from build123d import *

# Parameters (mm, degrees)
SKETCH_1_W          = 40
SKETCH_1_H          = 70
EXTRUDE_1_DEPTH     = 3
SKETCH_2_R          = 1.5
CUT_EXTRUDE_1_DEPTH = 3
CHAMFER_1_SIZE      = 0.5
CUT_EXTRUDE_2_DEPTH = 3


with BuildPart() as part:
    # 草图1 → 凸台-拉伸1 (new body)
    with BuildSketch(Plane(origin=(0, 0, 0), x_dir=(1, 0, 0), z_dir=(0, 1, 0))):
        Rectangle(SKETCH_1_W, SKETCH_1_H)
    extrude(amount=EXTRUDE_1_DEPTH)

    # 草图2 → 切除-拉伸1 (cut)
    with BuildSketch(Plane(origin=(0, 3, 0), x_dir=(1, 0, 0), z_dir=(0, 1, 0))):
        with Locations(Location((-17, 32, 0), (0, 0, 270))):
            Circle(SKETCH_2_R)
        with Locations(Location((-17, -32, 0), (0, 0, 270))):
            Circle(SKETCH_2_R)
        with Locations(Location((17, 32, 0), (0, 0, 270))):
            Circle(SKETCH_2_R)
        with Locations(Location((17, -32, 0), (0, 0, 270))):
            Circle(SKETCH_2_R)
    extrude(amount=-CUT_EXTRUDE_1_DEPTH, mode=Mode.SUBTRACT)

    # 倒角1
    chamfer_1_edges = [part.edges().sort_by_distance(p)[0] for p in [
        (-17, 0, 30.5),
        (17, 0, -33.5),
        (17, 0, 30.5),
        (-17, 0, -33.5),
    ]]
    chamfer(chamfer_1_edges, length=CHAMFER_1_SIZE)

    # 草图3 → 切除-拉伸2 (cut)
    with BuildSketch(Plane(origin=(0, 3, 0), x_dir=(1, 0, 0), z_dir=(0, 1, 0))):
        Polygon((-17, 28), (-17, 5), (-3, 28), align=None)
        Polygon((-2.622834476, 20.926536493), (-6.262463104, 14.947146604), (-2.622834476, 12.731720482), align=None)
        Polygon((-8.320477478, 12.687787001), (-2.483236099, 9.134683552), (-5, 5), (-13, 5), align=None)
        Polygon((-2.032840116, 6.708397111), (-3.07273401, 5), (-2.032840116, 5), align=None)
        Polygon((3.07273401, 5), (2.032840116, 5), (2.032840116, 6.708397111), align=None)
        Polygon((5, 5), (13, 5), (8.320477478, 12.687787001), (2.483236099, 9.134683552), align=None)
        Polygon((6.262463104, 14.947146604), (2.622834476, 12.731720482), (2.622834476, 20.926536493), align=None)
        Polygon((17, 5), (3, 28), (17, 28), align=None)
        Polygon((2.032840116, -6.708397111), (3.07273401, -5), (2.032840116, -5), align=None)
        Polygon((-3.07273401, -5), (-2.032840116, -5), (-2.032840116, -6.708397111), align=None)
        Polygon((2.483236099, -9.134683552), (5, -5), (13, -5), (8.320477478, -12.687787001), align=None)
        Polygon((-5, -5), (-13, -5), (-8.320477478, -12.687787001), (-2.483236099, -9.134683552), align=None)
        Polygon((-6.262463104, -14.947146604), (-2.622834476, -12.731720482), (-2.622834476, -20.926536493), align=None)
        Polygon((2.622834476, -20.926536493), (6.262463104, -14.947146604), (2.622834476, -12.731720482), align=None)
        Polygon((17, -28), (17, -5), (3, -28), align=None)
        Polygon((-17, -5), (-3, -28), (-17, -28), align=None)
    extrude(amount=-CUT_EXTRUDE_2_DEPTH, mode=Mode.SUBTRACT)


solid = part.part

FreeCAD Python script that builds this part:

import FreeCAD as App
import Part
import Sketcher

V = App.Vector


def edges_at(feature, points):
    """Names of the edges that pass closest to the given points."""
    edges = feature.Shape.Edges
    near = lambda p: min(range(len(edges)), key=lambda i: edges[i].distToShape(Part.Vertex(*p))[0])
    return sorted({f"Edge{near(p) + 1}" for p in points})

doc = App.newDocument("Part")
body = doc.addObject("PartDesign::Body", "Body")

# Sketch on XZ plane
sketch1 = doc.addObject("Sketcher::SketchObject", "Sketch")
body.addObject(sketch1)
sketch1.AttachmentSupport = (doc.XZ_Plane, [""])
sketch1.MapMode = "FlatFace"
sketch1.addGeometry([
    Part.LineSegment(V(-20, -35, 0), V(-20, 35, 0)),
    Part.LineSegment(V(-20, 35, 0), V(20, 35, 0)),
    Part.LineSegment(V(20, 35, 0), V(20, -35, 0)),
    Part.LineSegment(V(20, -35, 0), V(-20, -35, 0)),
], False)
sketch1.addConstraint([
    Sketcher.Constraint("Coincident", 0, 2, 1, 1),
    Sketcher.Constraint("Coincident", 1, 2, 2, 1),
    Sketcher.Constraint("Coincident", 2, 2, 3, 1),
    Sketcher.Constraint("Coincident", 3, 2, 0, 1),
    Sketcher.Constraint("Vertical", 0),
    Sketcher.Constraint("Horizontal", 1),
    Sketcher.Constraint("Vertical", 2),
    Sketcher.Constraint("Horizontal", 3),
    Sketcher.Constraint("Symmetric", 0, 2, 2, 2, -1, 1),
    Sketcher.Constraint("DistanceX", 1, 1, 1, 2, 40.0),
    Sketcher.Constraint("DistanceY", 0, 1, 0, 2, 70.0),
])
pad1 = doc.addObject("PartDesign::Pad", "Pad")
body.addObject(pad1)
pad1.Profile = sketch1
pad1.Length = 3
pad1.Reversed = True

# Sketch on XZ plane
sketch2 = doc.addObject("Sketcher::SketchObject", "Sketch001")
body.addObject(sketch2)
sketch2.AttachmentSupport = (doc.XZ_Plane, [""])
sketch2.MapMode = "FlatFace"
sketch2.AttachmentOffset = App.Placement(V(0, 0, -3), App.Rotation())
sketch2.addGeometry([
    Part.Circle(V(-17, -32, 0), V(0, 0, 1), 1.5),
    Part.Circle(V(-17, 32, 0), V(0, 0, 1), 1.5),
    Part.Circle(V(17, -32, 0), V(0, 0, 1), 1.5),
    Part.Circle(V(17, 32, 0), V(0, 0, 1), 1.5),
], False)
sketch2.addConstraint([
    Sketcher.Constraint("Equal", 0, 1),
    Sketcher.Constraint("Equal", 1, 2),
    Sketcher.Constraint("Equal", 2, 3),
    Sketcher.Constraint("Symmetric", 1, 3, 2, 3, -1, 1),
    Sketcher.Constraint("Symmetric", 0, 3, 3, 3, -1, 1),
    Sketcher.Constraint("Symmetric", 0, 3, 2, 3, -2),
    Sketcher.Constraint("Diameter", 0, 3.0),
    Sketcher.Constraint("DistanceX", 0, 3, -1, 1, 17.0),
    Sketcher.Constraint("DistanceY", 0, 3, -1, 1, 32.0),
])
pocket1 = doc.addObject("PartDesign::Pocket", "Pocket")
body.addObject(pocket1)
pocket1.Profile = sketch2
pocket1.Length = 3
pocket1.Reversed = True
doc.recompute()

chamfer = doc.addObject("PartDesign::Chamfer", "Chamfer")
body.addObject(chamfer)
chamfer.Base = (pocket1, edges_at(pocket1, [
    (-17, 0, 30.5),
    (17, 0, -33.5),
    (17, 0, 30.5),
    (-17, 0, -33.5),
]))
chamfer.Size = 0.5

# Sketch on XZ plane
sketch3 = doc.addObject("Sketcher::SketchObject", "Sketch002")
body.addObject(sketch3)
sketch3.AttachmentSupport = (doc.XZ_Plane, [""])
sketch3.MapMode = "FlatFace"
sketch3.AttachmentOffset = App.Placement(V(0, 0, -3), App.Rotation())
sketch3.addGeometry([
    Part.LineSegment(V(-17, -28, 0), V(-17, -5, 0)),  # 0
    Part.LineSegment(V(-17, -5, 0), V(-3, -28, 0)),  # 1
    Part.LineSegment(V(-3, -28, 0), V(-17, -28, 0)),  # 2
    Part.LineSegment(V(-2.6, -20.9, 0), V(-6.3, -14.9, 0)),  # 3
    Part.LineSegment(V(-6.3, -14.9, 0), V(-2.6, -12.7, 0)),  # 4
    Part.LineSegment(V(-2.6, -12.7, 0), V(-2.6, -20.9, 0)),  # 5
    Part.LineSegment(V(-2.5, -9.1, 0), V(-8.3, -12.7, 0)),  # 6
    Part.LineSegment(V(-8.3, -12.7, 0), V(-13, -5, 0)),  # 7
    Part.LineSegment(V(-13, -5, 0), V(-5, -5, 0)),  # 8
    Part.LineSegment(V(-5, -5, 0), V(-2.5, -9.1, 0)),  # 9
    Part.LineSegment(V(-2, -6.7, 0), V(-3.1, -5, 0)),  # 10
    Part.LineSegment(V(-3.1, -5, 0), V(-2, -5, 0)),  # 11
    Part.LineSegment(V(-2, -5, 0), V(-2, -6.7, 0)),  # 12
    Part.LineSegment(V(2, -5, 0), V(3.1, -5, 0)),  # 13
    Part.LineSegment(V(3.1, -5, 0), V(2, -6.7, 0)),  # 14
    Part.LineSegment(V(2, -6.7, 0), V(2, -5, 0)),  # 15
    Part.LineSegment(V(5, -5, 0), V(13, -5, 0)),  # 16
    Part.LineSegment(V(13, -5, 0), V(8.3, -12.7, 0)),  # 17
    Part.LineSegment(V(8.3, -12.7, 0), V(2.5, -9.1, 0)),  # 18
    Part.LineSegment(V(2.5, -9.1, 0), V(5, -5, 0)),  # 19
    Part.LineSegment(V(2.6, -12.7, 0), V(6.3, -14.9, 0)),  # 20
    Part.LineSegment(V(6.3, -14.9, 0), V(2.6, -20.9, 0)),  # 21
    Part.LineSegment(V(2.6, -20.9, 0), V(2.6, -12.7, 0)),  # 22
    Part.LineSegment(V(3, -28, 0), V(17, -5, 0)),  # 23
    Part.LineSegment(V(17, -5, 0), V(17, -28, 0)),  # 24
    Part.LineSegment(V(17, -28, 0), V(3, -28, 0)),  # 25
    Part.LineSegment(V(2, 6.7, 0), V(3.1, 5, 0)),  # 26
    Part.LineSegment(V(3.1, 5, 0), V(2, 5, 0)),  # 27
    Part.LineSegment(V(2, 5, 0), V(2, 6.7, 0)),  # 28
    Part.LineSegment(V(-2, 5, 0), V(-3.1, 5, 0)),  # 29
    Part.LineSegment(V(-3.1, 5, 0), V(-2, 6.7, 0)),  # 30
    Part.LineSegment(V(-2, 6.7, 0), V(-2, 5, 0)),  # 31
    Part.LineSegment(V(5, 5, 0), V(2.5, 9.1, 0)),  # 32
    Part.LineSegment(V(2.5, 9.1, 0), V(8.3, 12.7, 0)),  # 33
    Part.LineSegment(V(8.3, 12.7, 0), V(13, 5, 0)),  # 34
    Part.LineSegment(V(13, 5, 0), V(5, 5, 0)),  # 35
    Part.LineSegment(V(-5, 5, 0), V(-13, 5, 0)),  # 36
    Part.LineSegment(V(-13, 5, 0), V(-8.3, 12.7, 0)),  # 37
    Part.LineSegment(V(-8.3, 12.7, 0), V(-2.5, 9.1, 0)),  # 38
    Part.LineSegment(V(-2.5, 9.1, 0), V(-5, 5, 0)),  # 39
    Part.LineSegment(V(-2.6, 12.7, 0), V(-6.3, 14.9, 0)),  # 40
    Part.LineSegment(V(-6.3, 14.9, 0), V(-2.6, 20.9, 0)),  # 41
    Part.LineSegment(V(-2.6, 20.9, 0), V(-2.6, 12.7, 0)),  # 42
    Part.LineSegment(V(2.6, 20.9, 0), V(6.3, 14.9, 0)),  # 43
    Part.LineSegment(V(6.3, 14.9, 0), V(2.6, 12.7, 0)),  # 44
    Part.LineSegment(V(2.6, 12.7, 0), V(2.6, 20.9, 0)),  # 45
    Part.LineSegment(V(17, 28, 0), V(17, 5, 0)),  # 46
    Part.LineSegment(V(17, 5, 0), V(3, 28, 0)),  # 47
    Part.LineSegment(V(3, 28, 0), V(17, 28, 0)),  # 48
    Part.LineSegment(V(-3, 28, 0), V(-17, 5, 0)),  # 49
    Part.LineSegment(V(-17, 5, 0), V(-17, 28, 0)),  # 50
    Part.LineSegment(V(-17, 28, 0), V(-3, 28, 0)),  # 51
], False)
sketch3.addConstraint([
    Sketcher.Constraint("Coincident", 0, 2, 1, 1),
    Sketcher.Constraint("Coincident", 1, 2, 2, 1),
    Sketcher.Constraint("Coincident", 2, 2, 0, 1),
    Sketcher.Constraint("Coincident", 3, 2, 4, 1),
    Sketcher.Constraint("Coincident", 4, 2, 5, 1),
    Sketcher.Constraint("Coincident", 5, 2, 3, 1),
    Sketcher.Constraint("Coincident", 6, 2, 7, 1),
    Sketcher.Constraint("Coincident", 7, 2, 8, 1),
    Sketcher.Constraint("Coincident", 8, 2, 9, 1),
    Sketcher.Constraint("Coincident", 9, 2, 6, 1),
    Sketcher.Constraint("Coincident", 10, 2, 11, 1),
    Sketcher.Constraint("Coincident", 11, 2, 12, 1),
    Sketcher.Constraint("Coincident", 12, 2, 10, 1),
    Sketcher.Constraint("Coincident", 13, 2, 14, 1),
    Sketcher.Constraint("Coincident", 14, 2, 15, 1),
    Sketcher.Constraint("Coincident", 15, 2, 13, 1),
    Sketcher.Constraint("Coincident", 16, 2, 17, 1),
    Sketcher.Constraint("Coincident", 17, 2, 18, 1),
    Sketcher.Constraint("Coincident", 18, 2, 19, 1),
    Sketcher.Constraint("Coincident", 19, 2, 16, 1),
    Sketcher.Constraint("Coincident", 20, 2, 21, 1),
    Sketcher.Constraint("Coincident", 21, 2, 22, 1),
    Sketcher.Constraint("Coincident", 22, 2, 20, 1),
    Sketcher.Constraint("Coincident", 23, 2, 24, 1),
    Sketcher.Constraint("Coincident", 24, 2, 25, 1),
    Sketcher.Constraint("Coincident", 25, 2, 23, 1),
    Sketcher.Constraint("Coincident", 26, 2, 27, 1),
    Sketcher.Constraint("Coincident", 27, 2, 28, 1),
    Sketcher.Constraint("Coincident", 28, 2, 26, 1),
    Sketcher.Constraint("Coincident", 29, 2, 30, 1),
    Sketcher.Constraint("Coincident", 30, 2, 31, 1),
    Sketcher.Constraint("Coincident", 31, 2, 29, 1),
    Sketcher.Constraint("Coincident", 32, 2, 33, 1),
    Sketcher.Constraint("Coincident", 33, 2, 34, 1),
    Sketcher.Constraint("Coincident", 34, 2, 35, 1),
    Sketcher.Constraint("Coincident", 35, 2, 32, 1),
    Sketcher.Constraint("Coincident", 36, 2, 37, 1),
    Sketcher.Constraint("Coincident", 37, 2, 38, 1),
    Sketcher.Constraint("Coincident", 38, 2, 39, 1),
    Sketcher.Constraint("Coincident", 39, 2, 36, 1),
    Sketcher.Constraint("Coincident", 40, 2, 41, 1),
    Sketcher.Constraint("Coincident", 41, 2, 42, 1),
    Sketcher.Constraint("Coincident", 42, 2, 40, 1),
    Sketcher.Constraint("Coincident", 43, 2, 44, 1),
    Sketcher.Constraint("Coincident", 44, 2, 45, 1),
    Sketcher.Constraint("Coincident", 45, 2, 43, 1),
    Sketcher.Constraint("Coincident", 46, 2, 47, 1),
    Sketcher.Constraint("Coincident", 47, 2, 48, 1),
    Sketcher.Constraint("Coincident", 48, 2, 46, 1),
    Sketcher.Constraint("Coincident", 49, 2, 50, 1),
    Sketcher.Constraint("Coincident", 50, 2, 51, 1),
    Sketcher.Constraint("Coincident", 51, 2, 49, 1),
    Sketcher.Constraint("Vertical", 0),
    Sketcher.Constraint("Horizontal", 2),
    Sketcher.Constraint("Vertical", 5),
    Sketcher.Constraint("Horizontal", 8),
    Sketcher.Constraint("Horizontal", 11),
    Sketcher.Constraint("Vertical", 12),
    Sketcher.Constraint("Horizontal", 13),
    Sketcher.Constraint("Vertical", 15),
    Sketcher.Constraint("Horizontal", 16),
    Sketcher.Constraint("Vertical", 22),
    Sketcher.Constraint("Vertical", 24),
    Sketcher.Constraint("Horizontal", 25),
    Sketcher.Constraint("Horizontal", 27),
    Sketcher.Constraint("Vertical", 28),
    Sketcher.Constraint("Horizontal", 29),
    Sketcher.Constraint("Vertical", 31),
    Sketcher.Constraint("Horizontal", 35),
    Sketcher.Constraint("Horizontal", 36),
    Sketcher.Constraint("Vertical", 42),
    Sketcher.Constraint("Vertical", 45),
    Sketcher.Constraint("Vertical", 46),
    Sketcher.Constraint("Horizontal", 48),
    Sketcher.Constraint("Vertical", 50),
    Sketcher.Constraint("Horizontal", 51),
    Sketcher.Constraint("Symmetric", 10, 2, 26, 2, -1, 1),
    Sketcher.Constraint("Symmetric", 12, 2, 28, 2, -1, 1),
    Sketcher.Constraint("Symmetric", 13, 2, 29, 2, -1, 1),
    Sketcher.Constraint("Symmetric", 14, 2, 30, 2, -1, 1),
    Sketcher.Constraint("Symmetric", 9, 2, 32, 2, -1, 1),
    Sketcher.Constraint("Symmetric", 6, 2, 33, 2, -1, 1),
    Sketcher.Constraint("Symmetric", 7, 2, 34, 2, -1, 1),
    Sketcher.Constraint("Symmetric", 16, 2, 36, 2, -1, 1),
    Sketcher.Constraint("Symmetric", 17, 2, 37, 2, -1, 1),
    Sketcher.Constraint("Symmetric", 18, 2, 38, 2, -1, 1),
    Sketcher.Constraint("Symmetric", 20, 2, 40, 2, -1, 1),
    Sketcher.Constraint("Symmetric", 21, 2, 41, 2, -1, 1),
    Sketcher.Constraint("Symmetric", 3, 2, 43, 2, -1, 1),
    Sketcher.Constraint("Symmetric", 4, 2, 44, 2, -1, 1),
    Sketcher.Constraint("Symmetric", 0, 2, 46, 2, -1, 1),
    Sketcher.Constraint("Symmetric", 1, 2, 47, 2, -1, 1),
    Sketcher.Constraint("Symmetric", 23, 2, 49, 2, -1, 1),
    Sketcher.Constraint("Symmetric", 25, 2, 51, 2, -1, 1),
    Sketcher.Constraint("Symmetric", 10, 2, 13, 2, -2),
    Sketcher.Constraint("Symmetric", 12, 2, 14, 2, -2),
    Sketcher.Constraint("Symmetric", 7, 2, 16, 2, -2),
    Sketcher.Constraint("Symmetric", 6, 2, 17, 2, -2),
    Sketcher.Constraint("Symmetric", 9, 2, 18, 2, -2),
    Sketcher.Constraint("Symmetric", 3, 2, 20, 2, -2),
    Sketcher.Constraint("Symmetric", 5, 2, 21, 2, -2),
    Sketcher.Constraint("Symmetric", 0, 2, 23, 2, -2),
    Sketcher.Constraint("Symmetric", 1, 2, 25, 2, -2),
    Sketcher.Constraint("Parallel", 1, 3),
    Sketcher.Constraint("Perpendicular", 3, 4),
    Sketcher.Constraint("Parallel", 4, 6),
    Sketcher.Constraint("Perpendicular", 6, 7),
    Sketcher.Constraint("Parallel", 7, 9),
    Sketcher.Constraint("Parallel", 9, 10),
    Sketcher.Constraint("Perpendicular", 18, 19),
    Sketcher.Constraint("Perpendicular", 19, 20),
    Sketcher.Constraint("Parallel", 26, 32),
    Sketcher.Constraint("Perpendicular", 38, 39),
    Sketcher.Constraint("Perpendicular", 39, 40),
    Sketcher.Constraint("Parallel", 34, 43),
    Sketcher.Constraint("Horizontal", 0, 2, 7, 2),
    Sketcher.Constraint("Horizontal", 8, 2, 10, 2),
    Sketcher.Constraint("DistanceX", 2, 2, 2, 1, 14.0),
    Sketcher.Constraint("DistanceX", 8, 1, 8, 2, 8.0),
    Sketcher.Constraint("DistanceY", 0, 1, 0, 2, 23.0),
    Sketcher.Constraint("Distance", 3, 7.0),
    Sketcher.Constraint("Distance", 7, 9.0),
    Sketcher.Constraint("Distance", 10, 2.0),
    Sketcher.Constraint("DistanceX", 0, 2, -1, 1, 17.0),
    Sketcher.Constraint("DistanceY", 0, 2, -1, 1, 5.0),
    Sketcher.Constraint("DistanceX", 7, 2, -1, 1, 13.0),
    Sketcher.Constraint("DistanceX", 4, 2, 9, 2, 0.139598),
    Sketcher.Constraint("DistanceX", 10, 2, 4, 2, 0.4499),
    Sketcher.Constraint("DistanceY", 4, 2, -1, 1, 12.73172),
])
pocket2 = doc.addObject("PartDesign::Pocket", "Pocket001")
body.addObject(pocket2)
pocket2.Profile = sketch3
pocket2.Length = 3
pocket2.Reversed = True

doc.recompute()
